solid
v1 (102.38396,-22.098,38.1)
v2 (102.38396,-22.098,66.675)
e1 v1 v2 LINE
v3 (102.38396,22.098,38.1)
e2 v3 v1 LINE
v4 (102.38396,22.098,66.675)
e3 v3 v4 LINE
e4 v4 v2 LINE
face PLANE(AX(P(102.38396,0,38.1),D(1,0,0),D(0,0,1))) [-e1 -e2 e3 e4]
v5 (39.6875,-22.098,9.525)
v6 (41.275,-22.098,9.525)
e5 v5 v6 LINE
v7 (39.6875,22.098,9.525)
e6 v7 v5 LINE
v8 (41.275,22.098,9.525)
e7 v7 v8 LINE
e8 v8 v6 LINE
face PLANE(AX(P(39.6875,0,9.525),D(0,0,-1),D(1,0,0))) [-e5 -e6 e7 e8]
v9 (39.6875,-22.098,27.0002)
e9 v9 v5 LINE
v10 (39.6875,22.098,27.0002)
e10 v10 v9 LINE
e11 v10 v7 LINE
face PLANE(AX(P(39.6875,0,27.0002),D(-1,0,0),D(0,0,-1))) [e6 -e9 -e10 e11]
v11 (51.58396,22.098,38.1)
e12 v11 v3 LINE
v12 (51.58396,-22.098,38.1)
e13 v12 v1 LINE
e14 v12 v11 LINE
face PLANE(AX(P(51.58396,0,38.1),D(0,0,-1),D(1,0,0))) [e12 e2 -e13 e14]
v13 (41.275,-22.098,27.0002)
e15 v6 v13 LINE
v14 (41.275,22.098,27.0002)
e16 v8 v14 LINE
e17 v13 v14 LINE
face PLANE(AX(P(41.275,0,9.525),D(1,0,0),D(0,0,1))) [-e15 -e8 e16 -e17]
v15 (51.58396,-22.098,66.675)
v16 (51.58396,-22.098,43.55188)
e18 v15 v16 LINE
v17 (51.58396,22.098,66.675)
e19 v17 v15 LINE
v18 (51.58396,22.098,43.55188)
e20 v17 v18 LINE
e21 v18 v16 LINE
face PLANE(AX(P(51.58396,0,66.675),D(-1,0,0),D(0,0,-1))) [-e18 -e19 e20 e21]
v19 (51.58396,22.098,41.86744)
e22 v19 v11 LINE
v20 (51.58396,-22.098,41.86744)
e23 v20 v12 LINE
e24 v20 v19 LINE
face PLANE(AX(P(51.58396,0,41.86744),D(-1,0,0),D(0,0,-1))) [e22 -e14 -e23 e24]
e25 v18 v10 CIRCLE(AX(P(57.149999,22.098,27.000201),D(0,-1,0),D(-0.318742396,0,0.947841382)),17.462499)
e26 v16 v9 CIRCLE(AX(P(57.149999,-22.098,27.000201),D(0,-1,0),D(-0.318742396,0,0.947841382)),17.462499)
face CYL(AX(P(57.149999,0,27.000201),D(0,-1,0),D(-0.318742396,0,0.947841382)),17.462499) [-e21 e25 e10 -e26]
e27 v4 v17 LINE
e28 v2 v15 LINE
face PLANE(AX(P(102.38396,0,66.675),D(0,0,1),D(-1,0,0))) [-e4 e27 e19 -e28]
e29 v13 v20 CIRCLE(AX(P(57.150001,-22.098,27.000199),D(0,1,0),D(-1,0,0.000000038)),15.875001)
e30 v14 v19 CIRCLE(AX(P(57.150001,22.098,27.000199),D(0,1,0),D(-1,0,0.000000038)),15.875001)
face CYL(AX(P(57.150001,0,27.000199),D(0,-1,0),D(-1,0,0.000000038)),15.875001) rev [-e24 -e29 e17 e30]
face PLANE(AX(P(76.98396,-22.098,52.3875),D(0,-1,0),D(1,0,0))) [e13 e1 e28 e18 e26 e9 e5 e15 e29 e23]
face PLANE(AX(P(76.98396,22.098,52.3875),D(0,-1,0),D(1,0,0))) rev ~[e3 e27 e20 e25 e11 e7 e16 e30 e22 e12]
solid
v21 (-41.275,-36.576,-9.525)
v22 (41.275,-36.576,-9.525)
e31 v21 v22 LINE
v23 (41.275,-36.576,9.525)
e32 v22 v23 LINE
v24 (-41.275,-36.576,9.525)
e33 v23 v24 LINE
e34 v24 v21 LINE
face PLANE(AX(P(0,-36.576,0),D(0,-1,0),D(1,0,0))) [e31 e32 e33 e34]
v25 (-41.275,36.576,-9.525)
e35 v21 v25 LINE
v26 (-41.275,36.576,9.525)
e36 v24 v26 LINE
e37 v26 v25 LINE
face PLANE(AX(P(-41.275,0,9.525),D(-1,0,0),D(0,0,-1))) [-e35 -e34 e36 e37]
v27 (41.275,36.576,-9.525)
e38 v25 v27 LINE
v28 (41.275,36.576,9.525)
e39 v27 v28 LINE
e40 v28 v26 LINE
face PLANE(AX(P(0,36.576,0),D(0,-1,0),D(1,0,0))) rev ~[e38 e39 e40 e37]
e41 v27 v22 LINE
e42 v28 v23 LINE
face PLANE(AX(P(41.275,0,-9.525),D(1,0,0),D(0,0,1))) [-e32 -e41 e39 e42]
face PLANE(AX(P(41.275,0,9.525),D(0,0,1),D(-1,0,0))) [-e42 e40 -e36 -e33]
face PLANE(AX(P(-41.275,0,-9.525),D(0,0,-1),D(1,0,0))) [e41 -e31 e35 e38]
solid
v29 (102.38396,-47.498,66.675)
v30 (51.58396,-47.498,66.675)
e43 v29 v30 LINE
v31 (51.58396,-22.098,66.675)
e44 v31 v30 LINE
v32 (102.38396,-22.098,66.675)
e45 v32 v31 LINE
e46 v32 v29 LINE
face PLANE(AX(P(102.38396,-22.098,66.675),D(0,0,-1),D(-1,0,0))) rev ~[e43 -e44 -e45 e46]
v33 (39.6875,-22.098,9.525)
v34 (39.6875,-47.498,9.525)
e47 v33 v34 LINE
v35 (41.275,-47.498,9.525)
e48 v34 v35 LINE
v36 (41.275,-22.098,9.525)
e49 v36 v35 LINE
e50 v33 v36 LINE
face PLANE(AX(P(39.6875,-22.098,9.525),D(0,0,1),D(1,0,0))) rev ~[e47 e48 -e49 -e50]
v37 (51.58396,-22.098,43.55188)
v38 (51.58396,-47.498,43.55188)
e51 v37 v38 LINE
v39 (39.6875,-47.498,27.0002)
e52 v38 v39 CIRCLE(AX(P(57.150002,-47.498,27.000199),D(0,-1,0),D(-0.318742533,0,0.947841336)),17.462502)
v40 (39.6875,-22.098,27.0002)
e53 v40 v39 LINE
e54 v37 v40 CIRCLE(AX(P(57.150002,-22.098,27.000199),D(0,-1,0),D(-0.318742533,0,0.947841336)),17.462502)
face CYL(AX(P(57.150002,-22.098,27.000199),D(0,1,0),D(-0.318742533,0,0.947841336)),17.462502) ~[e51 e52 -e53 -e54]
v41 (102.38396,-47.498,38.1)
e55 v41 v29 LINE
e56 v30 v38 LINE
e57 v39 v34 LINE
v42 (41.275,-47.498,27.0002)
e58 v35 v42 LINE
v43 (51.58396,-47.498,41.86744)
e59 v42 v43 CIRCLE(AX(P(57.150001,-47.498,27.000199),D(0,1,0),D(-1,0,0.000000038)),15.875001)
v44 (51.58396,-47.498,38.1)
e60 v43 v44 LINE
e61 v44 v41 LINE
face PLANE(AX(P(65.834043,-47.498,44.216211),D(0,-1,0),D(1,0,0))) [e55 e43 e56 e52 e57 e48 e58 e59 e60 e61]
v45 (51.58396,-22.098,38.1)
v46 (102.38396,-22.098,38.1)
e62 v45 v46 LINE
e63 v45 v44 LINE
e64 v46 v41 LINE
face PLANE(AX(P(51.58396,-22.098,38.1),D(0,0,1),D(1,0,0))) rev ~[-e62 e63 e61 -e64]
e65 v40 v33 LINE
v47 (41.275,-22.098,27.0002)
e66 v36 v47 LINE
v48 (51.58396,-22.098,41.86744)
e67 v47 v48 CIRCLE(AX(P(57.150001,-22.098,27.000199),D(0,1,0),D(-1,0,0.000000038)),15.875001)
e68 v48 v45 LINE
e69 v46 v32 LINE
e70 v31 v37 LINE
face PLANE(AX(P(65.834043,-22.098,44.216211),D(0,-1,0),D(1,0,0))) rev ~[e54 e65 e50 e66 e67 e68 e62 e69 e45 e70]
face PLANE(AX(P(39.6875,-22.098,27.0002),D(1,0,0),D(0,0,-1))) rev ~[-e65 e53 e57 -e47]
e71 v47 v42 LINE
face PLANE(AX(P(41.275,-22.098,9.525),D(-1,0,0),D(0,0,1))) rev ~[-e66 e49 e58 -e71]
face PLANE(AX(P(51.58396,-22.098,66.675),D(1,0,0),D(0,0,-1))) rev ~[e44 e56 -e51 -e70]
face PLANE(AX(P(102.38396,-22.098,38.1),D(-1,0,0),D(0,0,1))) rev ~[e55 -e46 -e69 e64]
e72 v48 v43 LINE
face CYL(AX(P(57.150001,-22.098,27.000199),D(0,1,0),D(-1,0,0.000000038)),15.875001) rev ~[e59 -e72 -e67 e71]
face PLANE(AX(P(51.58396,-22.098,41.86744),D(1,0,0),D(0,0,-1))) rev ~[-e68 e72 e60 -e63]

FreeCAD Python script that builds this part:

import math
import FreeCAD as App
import Part
import Sketcher
Q = App.Units.Quantity

doc = App.newDocument("Part")
body = doc.addObject("PartDesign::Body", "Body")

# Sketch on XZ plane
sketch1 = body.newObject("Sketcher::SketchObject", "Sketch")
sketch1.AttachmentSupport = (doc.getObject("XZ_Plane"), [""])
sketch1.MapMode = "FlatFace"
sketch1.addGeometry(Part.LineSegment(App.Vector(-41, -10, 0), App.Vector(41, -10, 0)), False)
sketch1.addGeometry(Part.LineSegment(App.Vector(41, -10, 0), App.Vector(41, 10, 0)), False)
sketch1.addGeometry(Part.LineSegment(App.Vector(41, 10, 0), App.Vector(-41, 10, 0)), False)
sketch1.addGeometry(Part.LineSegment(App.Vector(-41, 10, 0), App.Vector(-41, -10, 0)), False)
sketch1.addConstraint(Sketcher.Constraint("Coincident", 0, 2, 1, 1))
sketch1.addConstraint(Sketcher.Constraint("Coincident", 1, 2, 2, 1))
sketch1.addConstraint(Sketcher.Constraint("Coincident", 2, 2, 3, 1))
sketch1.addConstraint(Sketcher.Constraint("Coincident", 3, 2, 0, 1))
sketch1.addConstraint(Sketcher.Constraint("Horizontal", 0))
sketch1.addConstraint(Sketcher.Constraint("Vertical", 1))
sketch1.addConstraint(Sketcher.Constraint("Horizontal", 2))
sketch1.addConstraint(Sketcher.Constraint("Vertical", 3))
sketch1.addConstraint(Sketcher.Constraint("Symmetric", 0, 2, 2, 2, -1, 1))
sketch1.addConstraint(Sketcher.Constraint("DistanceX", 0, 1, 0, 2, Q("3.25 in")))
sketch1.addConstraint(Sketcher.Constraint("DistanceY", 1, 1, 1, 2, Q("0.75 in")))
pad1 = body.newObject("PartDesign::Pad", "Pad")
pad1.Profile = sketch1
pad1.Length = Q("2.88 in")
pad1.Midplane = True
body2 = doc.addObject("PartDesign::Body", "Body001")

# Sketch on XZ plane
sketch2 = body2.newObject("Sketcher::SketchObject", "Sketch001")
sketch2.AttachmentSupport = (doc.getObject("XZ_Plane001"), [""])
sketch2.MapMode = "FlatFace"
sketch2.addGeometry(Part.LineSegment(App.Vector(51.6, 38.1, 0), App.Vector(102.4, 38.1, 0)), False)
sketch2.addGeometry(Part.LineSegment(App.Vector(102.4, 38.1, 0), App.Vector(102.4, 66.7, 0)), False)
sketch2.addGeometry(Part.LineSegment(App.Vector(102.4, 66.7, 0), App.Vector(51.6, 66.7, 0)), False)
sketch2.addGeometry(Part.LineSegment(App.Vector(51.6, 66.7, 0), App.Vector(51.6, 43.6, 0)), False)
sketch2.addGeometry(Part.ArcOfCircle(Part.Circle(App.Vector(57.1, 27, 0), App.Vector(0, 0, 1), 17.5), math.radians(109), math.radians(180)), False)
sketch2.addGeometry(Part.LineSegment(App.Vector(39.7, 27, 0), App.Vector(39.7, 9.5, 0)), False)
sketch2.addGeometry(Part.LineSegment(App.Vector(39.7, 9.5, 0), App.Vector(41.3, 9.5, 0)), False)
sketch2.addGeometry(Part.LineSegment(App.Vector(41.3, 9.5, 0), App.Vector(41.3, 27, 0)), False)
sketch2.addGeometry(Part.ArcOfCircle(Part.Circle(App.Vector(57.2, 27, 0), App.Vector(0, 0, 1), 15.9), math.radians(111), math.radians(180)), False)
sketch2.addGeometry(Part.LineSegment(App.Vector(51.6, 41.9, 0), App.Vector(51.6, 38.1, 0)), False)
sketch2.addConstraint(Sketcher.Constraint("Coincident", 0, 2, 1, 1))
sketch2.addConstraint(Sketcher.Constraint("Coincident", 1, 2, 2, 1))
sketch2.addConstraint(Sketcher.Constraint("Coincident", 2, 2, 3, 1))
sketch2.addConstraint(Sketcher.Constraint("Coincident", 3, 2, 4, 1))
sketch2.addConstraint(Sketcher.Constraint("Tangent", 4, 2, 5, 1))
sketch2.addConstraint(Sketcher.Constraint("Coincident", 5, 2, 6, 1))
sketch2.addConstraint(Sketcher.Constraint("Coincident", 6, 2, 7, 1))
sketch2.addConstraint(Sketcher.Constraint("Tangent", 7, 2, 8, 2))
sketch2.addConstraint(Sketcher.Constraint("Coincident", 8, 1, 9, 1))
sketch2.addConstraint(Sketcher.Constraint("Coincident", 9, 2, 0, 1))
sketch2.addConstraint(Sketcher.Constraint("Horizontal", 0))
sketch2.addConstraint(Sketcher.Constraint("Vertical", 1))
sketch2.addConstraint(Sketcher.Constraint("Horizontal", 2))
sketch2.addConstraint(Sketcher.Constraint("Vertical", 3))
sketch2.addConstraint(Sketcher.Constraint("Vertical", 5))
sketch2.addConstraint(Sketcher.Constraint("Horizontal", 6))
sketch2.addConstraint(Sketcher.Constraint("Vertical", 7))
sketch2.addConstraint(Sketcher.Constraint("Vertical", 9))
sketch2.addConstraint(Sketcher.Constraint("Coincident", 8, 3, 4, 3))
sketch2.addConstraint(Sketcher.Constraint("Vertical", 3, 2, 8, 1))
sketch2.addConstraint(Sketcher.Constraint("DistanceX", 0, 1, 0, 2, Q("2 in")))
sketch2.addConstraint(Sketcher.Constraint("Radius", 4, Q("0.6874999 in")))
sketch2.addConstraint(Sketcher.Constraint("Radius", 8, Q("0.625 in")))
sketch2.addConstraint(Sketcher.Constraint("DistanceY", -1, 1, 0, 2, Q("1.5 in")))
sketch2.addConstraint(Sketcher.Constraint("DistanceY", 1, 1, 1, 2, Q("1.125 in")))
sketch2.addConstraint(Sketcher.Constraint("DistanceY", 5, 2, 5, 1, Q("0.688 in")))
sketch2.addConstraint(Sketcher.Constraint("DistanceX", -1, 1, 4, 3, Q("2.2499999 in")))
sketch2.addConstraint(Sketcher.Constraint("DistanceY", 5, 2, 2, 2, Q("2.25 in")))
sketch2.addConstraint(Sketcher.Constraint("DistanceY", 3, 2, 3, 1, 23.12312))
pad2 = body2.newObject("PartDesign::Pad", "Pad001")
pad2.Profile = sketch2
pad2.Length = Q("1.74 in")
pad2.Midplane = True
body3 = doc.addObject("PartDesign::Body", "Body002")

# Sketch on XZ plane
sketch3 = body3.newObject("Sketcher::SketchObject", "Sketch002")
sketch3.AttachmentSupport = (doc.getObject("XZ_Plane002"), [""])
sketch3.MapMode = "FlatFace"
sketch3.AttachmentOffset = App.Placement(App.Vector(0, 0, 0.87 * 25.4), App.Rotation())
sketch3.addGeometry(Part.LineSegment(App.Vector(51.6, 41.9, 0), App.Vector(51.6, 38.1, 0)), False)
sketch3.addGeometry(Part.LineSegment(App.Vector(51.6, 38.1, 0), App.Vector(102.4, 38.1, 0)), False)
sketch3.addGeometry(Part.LineSegment(App.Vector(102.4, 38.1, 0), App.Vector(102.4, 66.7, 0)), False)
sketch3.addGeometry(Part.LineSegment(App.Vector(102.4, 66.7, 0), App.Vector(51.6, 66.7, 0)), False)
sketch3.addGeometry(Part.LineSegment(App.Vector(51.6, 66.7, 0), App.Vector(51.6, 43.6, 0)), False)
sketch3.addGeometry(Part.ArcOfCircle(Part.Circle(App.Vector(57.2, 27, 0), App.Vector(0, 0, 1), 17.5), math.radians(109), math.radians(180)), False)
sketch3.addGeometry(Part.LineSegment(App.Vector(39.7, 27, 0), App.Vector(39.7, 9.5, 0)), False)
sketch3.addGeometry(Part.LineSegment(App.Vector(39.7, 9.5, 0), App.Vector(41.3, 9.5, 0)), False)
sketch3.addGeometry(Part.LineSegment(App.Vector(41.3, 9.5, 0), App.Vector(41.3, 27, 0)), False)
sketch3.addGeometry(Part.ArcOfCircle(Part.Circle(App.Vector(57.2, 27, 0), App.Vector(0, 0, 1), 15.9), math.radians(111), math.radians(180)), False)
sketch3.addConstraint(Sketcher.Constraint("Coincident", 0, 2, 1, 1))
sketch3.addConstraint(Sketcher.Constraint("Coincident", 1, 2, 2, 1))
sketch3.addConstraint(Sketcher.Constraint("Coincident", 2, 2, 3, 1))
sketch3.addConstraint(Sketcher.Constraint("Coincident", 3, 2, 4, 1))
sketch3.addConstraint(Sketcher.Constraint("Coincident", 4, 2, 5, 1))
sketch3.addConstraint(Sketcher.Constraint("Tangent", 5, 2, 6, 1))
sketch3.addConstraint(Sketcher.Constraint("Coincident", 6, 2, 7, 1))
sketch3.addConstraint(Sketcher.Constraint("Coincident", 7, 2, 8, 1))
sketch3.addConstraint(Sketcher.Constraint("Tangent", 8, 2, 9, 2))
sketch3.addConstraint(Sketcher.Constraint("Coincident", 9, 1, 0, 1))
sketch3.addConstraint(Sketcher.Constraint("Vertical", 0))
sketch3.addConstraint(Sketcher.Constraint("Horizontal", 1))
sketch3.addConstraint(Sketcher.Constraint("Vertical", 2))
sketch3.addConstraint(Sketcher.Constraint("Horizontal", 3))
sketch3.addConstraint(Sketcher.Constraint("Vertical", 4))
sketch3.addConstraint(Sketcher.Constraint("Vertical", 6))
sketch3.addConstraint(Sketcher.Constraint("Horizontal", 7))
sketch3.addConstraint(Sketcher.Constraint("Vertical", 8))
sketch3.addConstraint(Sketcher.Constraint("Coincident", 9, 3, 5, 3))
sketch3.addConstraint(Sketcher.Constraint("Vertical", 0, 2, 3, 2))
sketch3.addConstraint(Sketcher.Constraint("DistanceX", 1, 1, 1, 2, Q("2 in")))
sketch3.addConstraint(Sketcher.Constraint("Radius", 5, Q("0.6875001 in")))
sketch3.addConstraint(Sketcher.Constraint("Radius", 9, Q("0.625 in")))
sketch3.addConstraint(Sketcher.Constraint("DistanceY", -1, 1, 0, 2, Q("1.5 in")))
sketch3.addConstraint(Sketcher.Constraint("DistanceY", 2, 1, 2, 2, Q("1.125 in")))
sketch3.addConstraint(Sketcher.Constraint("DistanceY", 6, 2, 6, 1, Q("0.688 in")))
sketch3.addConstraint(Sketcher.Constraint("DistanceX", -1, 1, 5, 3, Q("2.2500001 in")))
sketch3.addConstraint(Sketcher.Constraint("DistanceY", -1, 1, 5, 3, Q("1.0629999 in")))
sketch3.addConstraint(Sketcher.Constraint("DistanceY", 0, 2, 0, 1, 3.76744))
pad3 = body3.newObject("PartDesign::Pad", "Pad002")
pad3.Profile = sketch3
pad3.Length = Q("1 in")

doc.recompute()
